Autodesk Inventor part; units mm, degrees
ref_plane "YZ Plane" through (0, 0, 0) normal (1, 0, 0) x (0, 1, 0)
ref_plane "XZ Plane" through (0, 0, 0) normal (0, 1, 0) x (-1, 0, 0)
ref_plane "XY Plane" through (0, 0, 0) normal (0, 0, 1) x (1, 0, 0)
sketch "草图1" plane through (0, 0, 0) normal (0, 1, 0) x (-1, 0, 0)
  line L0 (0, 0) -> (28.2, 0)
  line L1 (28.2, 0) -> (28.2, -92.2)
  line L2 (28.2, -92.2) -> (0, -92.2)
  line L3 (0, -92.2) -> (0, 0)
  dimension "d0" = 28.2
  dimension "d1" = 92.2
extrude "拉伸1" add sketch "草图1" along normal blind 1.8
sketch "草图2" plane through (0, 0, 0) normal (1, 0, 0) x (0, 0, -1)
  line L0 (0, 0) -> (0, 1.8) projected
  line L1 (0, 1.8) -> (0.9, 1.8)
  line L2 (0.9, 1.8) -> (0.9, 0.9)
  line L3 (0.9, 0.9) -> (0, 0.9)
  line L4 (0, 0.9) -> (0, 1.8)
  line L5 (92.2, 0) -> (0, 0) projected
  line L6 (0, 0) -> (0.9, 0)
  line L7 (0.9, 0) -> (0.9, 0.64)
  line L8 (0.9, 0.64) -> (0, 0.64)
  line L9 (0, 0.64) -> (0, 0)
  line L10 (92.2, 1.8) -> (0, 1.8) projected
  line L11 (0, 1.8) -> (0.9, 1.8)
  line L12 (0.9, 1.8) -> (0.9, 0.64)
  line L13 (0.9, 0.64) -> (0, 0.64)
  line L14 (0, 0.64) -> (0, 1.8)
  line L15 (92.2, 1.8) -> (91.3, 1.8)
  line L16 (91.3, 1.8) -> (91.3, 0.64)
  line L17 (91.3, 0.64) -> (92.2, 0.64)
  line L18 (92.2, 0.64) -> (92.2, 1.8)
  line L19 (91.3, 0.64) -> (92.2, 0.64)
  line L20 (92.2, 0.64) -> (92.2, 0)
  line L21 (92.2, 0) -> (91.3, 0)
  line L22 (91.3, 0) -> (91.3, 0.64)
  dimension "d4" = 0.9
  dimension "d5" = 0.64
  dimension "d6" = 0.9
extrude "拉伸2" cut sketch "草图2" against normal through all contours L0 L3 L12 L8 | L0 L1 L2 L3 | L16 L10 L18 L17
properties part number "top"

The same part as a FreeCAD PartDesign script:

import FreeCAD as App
import Part
import Sketcher


def add_polygon(sketch, points):
    """Adds a closed chain of lines whose ends are joined by coincident constraints."""
    first, n = sketch.GeometryCount, len(points)
    for a, b in zip(points, points[1:] + points[:1]):
        sketch.addGeometry(Part.LineSegment(App.Vector(*a, 0), App.Vector(*b, 0)), False)
    for i in range(n):
        sketch.addConstraint(Sketcher.Constraint("Coincident", first + i, 2, first + (i + 1) % n, 1))

doc = App.newDocument("Part")
body = doc.addObject("PartDesign::Body", "Body")

# Sketch on XZ plane
sketch1 = body.newObject("Sketcher::SketchObject", "Sketch")
sketch1.AttachmentSupport = (doc.getObject("XZ_Plane"), [""])
sketch1.MapMode = "FlatFace"
add_polygon(sketch1, [(-28.2, 0), (0, 0), (0, -92.2), (-28.2, -92.2)])  # lines 0-3
sketch1.addConstraint([
    Sketcher.Constraint("Horizontal", 0),
    Sketcher.Constraint("Vertical", 1),
    Sketcher.Constraint("Horizontal", 2),
    Sketcher.Constraint("Vertical", 3),
    Sketcher.Constraint("Coincident", 0, 2, -1, 1),
    Sketcher.Constraint("DistanceX", 0, 1, 0, 2, 28.2),
    Sketcher.Constraint("DistanceY", 1, 2, 1, 1, 92.2),
])
pad1 = body.newObject("PartDesign::Pad", "Pad")
pad1.Profile = sketch1
pad1.Length = 1.8
pad1.Reversed = True

# Sketch on YZ plane
sketch2 = body.newObject("Sketcher::SketchObject", "Sketch001")
sketch2.AttachmentSupport = (doc.getObject("YZ_Plane"), [""])
sketch2.MapMode = "FlatFace"
add_polygon(sketch2, [(0.64, 0), (0.64, -0.9), (1.8, -0.9), (1.8, 0)])  # lines 0-3
add_polygon(sketch2, [(1.8, -91.3), (0.64, -91.3), (0.64, -92.2), (1.8, -92.2)])  # lines 4-7
sketch2.addConstraint([
    Sketcher.Constraint("Vertical", 0),
    Sketcher.Constraint("Horizontal", 1),
    Sketcher.Constraint("Vertical", 2),
    Sketcher.Constraint("Horizontal", 3),
    Sketcher.Constraint("Horizontal", 4),
    Sketcher.Constraint("Vertical", 5),
    Sketcher.Constraint("Horizontal", 6),
    Sketcher.Constraint("Vertical", 7),
    Sketcher.Constraint("PointOnObject", 2, 2, -1),
    Sketcher.Constraint("Vertical", 3, 2, 4, 2),
    Sketcher.Constraint("Vertical", 2, 2, 6, 2),
    Sketcher.Constraint("Equal", 2, 5),
    Sketcher.Constraint("DistanceY", 0, 2, 0, 1, 0.9),
    Sketcher.Constraint("DistanceX", -1, 1, 0, 2, 0.64),
    Sketcher.Constraint("DistanceX", 1, 1, 1, 2, 1.16),
    Sketcher.Constraint("DistanceY", 4, 2, -1, 1, 91.3),
])
pocket1 = body.newObject("PartDesign::Pocket", "Pocket")
pocket1.Profile = sketch2
pocket1.Type = "ThroughAll"

doc.recompute()
